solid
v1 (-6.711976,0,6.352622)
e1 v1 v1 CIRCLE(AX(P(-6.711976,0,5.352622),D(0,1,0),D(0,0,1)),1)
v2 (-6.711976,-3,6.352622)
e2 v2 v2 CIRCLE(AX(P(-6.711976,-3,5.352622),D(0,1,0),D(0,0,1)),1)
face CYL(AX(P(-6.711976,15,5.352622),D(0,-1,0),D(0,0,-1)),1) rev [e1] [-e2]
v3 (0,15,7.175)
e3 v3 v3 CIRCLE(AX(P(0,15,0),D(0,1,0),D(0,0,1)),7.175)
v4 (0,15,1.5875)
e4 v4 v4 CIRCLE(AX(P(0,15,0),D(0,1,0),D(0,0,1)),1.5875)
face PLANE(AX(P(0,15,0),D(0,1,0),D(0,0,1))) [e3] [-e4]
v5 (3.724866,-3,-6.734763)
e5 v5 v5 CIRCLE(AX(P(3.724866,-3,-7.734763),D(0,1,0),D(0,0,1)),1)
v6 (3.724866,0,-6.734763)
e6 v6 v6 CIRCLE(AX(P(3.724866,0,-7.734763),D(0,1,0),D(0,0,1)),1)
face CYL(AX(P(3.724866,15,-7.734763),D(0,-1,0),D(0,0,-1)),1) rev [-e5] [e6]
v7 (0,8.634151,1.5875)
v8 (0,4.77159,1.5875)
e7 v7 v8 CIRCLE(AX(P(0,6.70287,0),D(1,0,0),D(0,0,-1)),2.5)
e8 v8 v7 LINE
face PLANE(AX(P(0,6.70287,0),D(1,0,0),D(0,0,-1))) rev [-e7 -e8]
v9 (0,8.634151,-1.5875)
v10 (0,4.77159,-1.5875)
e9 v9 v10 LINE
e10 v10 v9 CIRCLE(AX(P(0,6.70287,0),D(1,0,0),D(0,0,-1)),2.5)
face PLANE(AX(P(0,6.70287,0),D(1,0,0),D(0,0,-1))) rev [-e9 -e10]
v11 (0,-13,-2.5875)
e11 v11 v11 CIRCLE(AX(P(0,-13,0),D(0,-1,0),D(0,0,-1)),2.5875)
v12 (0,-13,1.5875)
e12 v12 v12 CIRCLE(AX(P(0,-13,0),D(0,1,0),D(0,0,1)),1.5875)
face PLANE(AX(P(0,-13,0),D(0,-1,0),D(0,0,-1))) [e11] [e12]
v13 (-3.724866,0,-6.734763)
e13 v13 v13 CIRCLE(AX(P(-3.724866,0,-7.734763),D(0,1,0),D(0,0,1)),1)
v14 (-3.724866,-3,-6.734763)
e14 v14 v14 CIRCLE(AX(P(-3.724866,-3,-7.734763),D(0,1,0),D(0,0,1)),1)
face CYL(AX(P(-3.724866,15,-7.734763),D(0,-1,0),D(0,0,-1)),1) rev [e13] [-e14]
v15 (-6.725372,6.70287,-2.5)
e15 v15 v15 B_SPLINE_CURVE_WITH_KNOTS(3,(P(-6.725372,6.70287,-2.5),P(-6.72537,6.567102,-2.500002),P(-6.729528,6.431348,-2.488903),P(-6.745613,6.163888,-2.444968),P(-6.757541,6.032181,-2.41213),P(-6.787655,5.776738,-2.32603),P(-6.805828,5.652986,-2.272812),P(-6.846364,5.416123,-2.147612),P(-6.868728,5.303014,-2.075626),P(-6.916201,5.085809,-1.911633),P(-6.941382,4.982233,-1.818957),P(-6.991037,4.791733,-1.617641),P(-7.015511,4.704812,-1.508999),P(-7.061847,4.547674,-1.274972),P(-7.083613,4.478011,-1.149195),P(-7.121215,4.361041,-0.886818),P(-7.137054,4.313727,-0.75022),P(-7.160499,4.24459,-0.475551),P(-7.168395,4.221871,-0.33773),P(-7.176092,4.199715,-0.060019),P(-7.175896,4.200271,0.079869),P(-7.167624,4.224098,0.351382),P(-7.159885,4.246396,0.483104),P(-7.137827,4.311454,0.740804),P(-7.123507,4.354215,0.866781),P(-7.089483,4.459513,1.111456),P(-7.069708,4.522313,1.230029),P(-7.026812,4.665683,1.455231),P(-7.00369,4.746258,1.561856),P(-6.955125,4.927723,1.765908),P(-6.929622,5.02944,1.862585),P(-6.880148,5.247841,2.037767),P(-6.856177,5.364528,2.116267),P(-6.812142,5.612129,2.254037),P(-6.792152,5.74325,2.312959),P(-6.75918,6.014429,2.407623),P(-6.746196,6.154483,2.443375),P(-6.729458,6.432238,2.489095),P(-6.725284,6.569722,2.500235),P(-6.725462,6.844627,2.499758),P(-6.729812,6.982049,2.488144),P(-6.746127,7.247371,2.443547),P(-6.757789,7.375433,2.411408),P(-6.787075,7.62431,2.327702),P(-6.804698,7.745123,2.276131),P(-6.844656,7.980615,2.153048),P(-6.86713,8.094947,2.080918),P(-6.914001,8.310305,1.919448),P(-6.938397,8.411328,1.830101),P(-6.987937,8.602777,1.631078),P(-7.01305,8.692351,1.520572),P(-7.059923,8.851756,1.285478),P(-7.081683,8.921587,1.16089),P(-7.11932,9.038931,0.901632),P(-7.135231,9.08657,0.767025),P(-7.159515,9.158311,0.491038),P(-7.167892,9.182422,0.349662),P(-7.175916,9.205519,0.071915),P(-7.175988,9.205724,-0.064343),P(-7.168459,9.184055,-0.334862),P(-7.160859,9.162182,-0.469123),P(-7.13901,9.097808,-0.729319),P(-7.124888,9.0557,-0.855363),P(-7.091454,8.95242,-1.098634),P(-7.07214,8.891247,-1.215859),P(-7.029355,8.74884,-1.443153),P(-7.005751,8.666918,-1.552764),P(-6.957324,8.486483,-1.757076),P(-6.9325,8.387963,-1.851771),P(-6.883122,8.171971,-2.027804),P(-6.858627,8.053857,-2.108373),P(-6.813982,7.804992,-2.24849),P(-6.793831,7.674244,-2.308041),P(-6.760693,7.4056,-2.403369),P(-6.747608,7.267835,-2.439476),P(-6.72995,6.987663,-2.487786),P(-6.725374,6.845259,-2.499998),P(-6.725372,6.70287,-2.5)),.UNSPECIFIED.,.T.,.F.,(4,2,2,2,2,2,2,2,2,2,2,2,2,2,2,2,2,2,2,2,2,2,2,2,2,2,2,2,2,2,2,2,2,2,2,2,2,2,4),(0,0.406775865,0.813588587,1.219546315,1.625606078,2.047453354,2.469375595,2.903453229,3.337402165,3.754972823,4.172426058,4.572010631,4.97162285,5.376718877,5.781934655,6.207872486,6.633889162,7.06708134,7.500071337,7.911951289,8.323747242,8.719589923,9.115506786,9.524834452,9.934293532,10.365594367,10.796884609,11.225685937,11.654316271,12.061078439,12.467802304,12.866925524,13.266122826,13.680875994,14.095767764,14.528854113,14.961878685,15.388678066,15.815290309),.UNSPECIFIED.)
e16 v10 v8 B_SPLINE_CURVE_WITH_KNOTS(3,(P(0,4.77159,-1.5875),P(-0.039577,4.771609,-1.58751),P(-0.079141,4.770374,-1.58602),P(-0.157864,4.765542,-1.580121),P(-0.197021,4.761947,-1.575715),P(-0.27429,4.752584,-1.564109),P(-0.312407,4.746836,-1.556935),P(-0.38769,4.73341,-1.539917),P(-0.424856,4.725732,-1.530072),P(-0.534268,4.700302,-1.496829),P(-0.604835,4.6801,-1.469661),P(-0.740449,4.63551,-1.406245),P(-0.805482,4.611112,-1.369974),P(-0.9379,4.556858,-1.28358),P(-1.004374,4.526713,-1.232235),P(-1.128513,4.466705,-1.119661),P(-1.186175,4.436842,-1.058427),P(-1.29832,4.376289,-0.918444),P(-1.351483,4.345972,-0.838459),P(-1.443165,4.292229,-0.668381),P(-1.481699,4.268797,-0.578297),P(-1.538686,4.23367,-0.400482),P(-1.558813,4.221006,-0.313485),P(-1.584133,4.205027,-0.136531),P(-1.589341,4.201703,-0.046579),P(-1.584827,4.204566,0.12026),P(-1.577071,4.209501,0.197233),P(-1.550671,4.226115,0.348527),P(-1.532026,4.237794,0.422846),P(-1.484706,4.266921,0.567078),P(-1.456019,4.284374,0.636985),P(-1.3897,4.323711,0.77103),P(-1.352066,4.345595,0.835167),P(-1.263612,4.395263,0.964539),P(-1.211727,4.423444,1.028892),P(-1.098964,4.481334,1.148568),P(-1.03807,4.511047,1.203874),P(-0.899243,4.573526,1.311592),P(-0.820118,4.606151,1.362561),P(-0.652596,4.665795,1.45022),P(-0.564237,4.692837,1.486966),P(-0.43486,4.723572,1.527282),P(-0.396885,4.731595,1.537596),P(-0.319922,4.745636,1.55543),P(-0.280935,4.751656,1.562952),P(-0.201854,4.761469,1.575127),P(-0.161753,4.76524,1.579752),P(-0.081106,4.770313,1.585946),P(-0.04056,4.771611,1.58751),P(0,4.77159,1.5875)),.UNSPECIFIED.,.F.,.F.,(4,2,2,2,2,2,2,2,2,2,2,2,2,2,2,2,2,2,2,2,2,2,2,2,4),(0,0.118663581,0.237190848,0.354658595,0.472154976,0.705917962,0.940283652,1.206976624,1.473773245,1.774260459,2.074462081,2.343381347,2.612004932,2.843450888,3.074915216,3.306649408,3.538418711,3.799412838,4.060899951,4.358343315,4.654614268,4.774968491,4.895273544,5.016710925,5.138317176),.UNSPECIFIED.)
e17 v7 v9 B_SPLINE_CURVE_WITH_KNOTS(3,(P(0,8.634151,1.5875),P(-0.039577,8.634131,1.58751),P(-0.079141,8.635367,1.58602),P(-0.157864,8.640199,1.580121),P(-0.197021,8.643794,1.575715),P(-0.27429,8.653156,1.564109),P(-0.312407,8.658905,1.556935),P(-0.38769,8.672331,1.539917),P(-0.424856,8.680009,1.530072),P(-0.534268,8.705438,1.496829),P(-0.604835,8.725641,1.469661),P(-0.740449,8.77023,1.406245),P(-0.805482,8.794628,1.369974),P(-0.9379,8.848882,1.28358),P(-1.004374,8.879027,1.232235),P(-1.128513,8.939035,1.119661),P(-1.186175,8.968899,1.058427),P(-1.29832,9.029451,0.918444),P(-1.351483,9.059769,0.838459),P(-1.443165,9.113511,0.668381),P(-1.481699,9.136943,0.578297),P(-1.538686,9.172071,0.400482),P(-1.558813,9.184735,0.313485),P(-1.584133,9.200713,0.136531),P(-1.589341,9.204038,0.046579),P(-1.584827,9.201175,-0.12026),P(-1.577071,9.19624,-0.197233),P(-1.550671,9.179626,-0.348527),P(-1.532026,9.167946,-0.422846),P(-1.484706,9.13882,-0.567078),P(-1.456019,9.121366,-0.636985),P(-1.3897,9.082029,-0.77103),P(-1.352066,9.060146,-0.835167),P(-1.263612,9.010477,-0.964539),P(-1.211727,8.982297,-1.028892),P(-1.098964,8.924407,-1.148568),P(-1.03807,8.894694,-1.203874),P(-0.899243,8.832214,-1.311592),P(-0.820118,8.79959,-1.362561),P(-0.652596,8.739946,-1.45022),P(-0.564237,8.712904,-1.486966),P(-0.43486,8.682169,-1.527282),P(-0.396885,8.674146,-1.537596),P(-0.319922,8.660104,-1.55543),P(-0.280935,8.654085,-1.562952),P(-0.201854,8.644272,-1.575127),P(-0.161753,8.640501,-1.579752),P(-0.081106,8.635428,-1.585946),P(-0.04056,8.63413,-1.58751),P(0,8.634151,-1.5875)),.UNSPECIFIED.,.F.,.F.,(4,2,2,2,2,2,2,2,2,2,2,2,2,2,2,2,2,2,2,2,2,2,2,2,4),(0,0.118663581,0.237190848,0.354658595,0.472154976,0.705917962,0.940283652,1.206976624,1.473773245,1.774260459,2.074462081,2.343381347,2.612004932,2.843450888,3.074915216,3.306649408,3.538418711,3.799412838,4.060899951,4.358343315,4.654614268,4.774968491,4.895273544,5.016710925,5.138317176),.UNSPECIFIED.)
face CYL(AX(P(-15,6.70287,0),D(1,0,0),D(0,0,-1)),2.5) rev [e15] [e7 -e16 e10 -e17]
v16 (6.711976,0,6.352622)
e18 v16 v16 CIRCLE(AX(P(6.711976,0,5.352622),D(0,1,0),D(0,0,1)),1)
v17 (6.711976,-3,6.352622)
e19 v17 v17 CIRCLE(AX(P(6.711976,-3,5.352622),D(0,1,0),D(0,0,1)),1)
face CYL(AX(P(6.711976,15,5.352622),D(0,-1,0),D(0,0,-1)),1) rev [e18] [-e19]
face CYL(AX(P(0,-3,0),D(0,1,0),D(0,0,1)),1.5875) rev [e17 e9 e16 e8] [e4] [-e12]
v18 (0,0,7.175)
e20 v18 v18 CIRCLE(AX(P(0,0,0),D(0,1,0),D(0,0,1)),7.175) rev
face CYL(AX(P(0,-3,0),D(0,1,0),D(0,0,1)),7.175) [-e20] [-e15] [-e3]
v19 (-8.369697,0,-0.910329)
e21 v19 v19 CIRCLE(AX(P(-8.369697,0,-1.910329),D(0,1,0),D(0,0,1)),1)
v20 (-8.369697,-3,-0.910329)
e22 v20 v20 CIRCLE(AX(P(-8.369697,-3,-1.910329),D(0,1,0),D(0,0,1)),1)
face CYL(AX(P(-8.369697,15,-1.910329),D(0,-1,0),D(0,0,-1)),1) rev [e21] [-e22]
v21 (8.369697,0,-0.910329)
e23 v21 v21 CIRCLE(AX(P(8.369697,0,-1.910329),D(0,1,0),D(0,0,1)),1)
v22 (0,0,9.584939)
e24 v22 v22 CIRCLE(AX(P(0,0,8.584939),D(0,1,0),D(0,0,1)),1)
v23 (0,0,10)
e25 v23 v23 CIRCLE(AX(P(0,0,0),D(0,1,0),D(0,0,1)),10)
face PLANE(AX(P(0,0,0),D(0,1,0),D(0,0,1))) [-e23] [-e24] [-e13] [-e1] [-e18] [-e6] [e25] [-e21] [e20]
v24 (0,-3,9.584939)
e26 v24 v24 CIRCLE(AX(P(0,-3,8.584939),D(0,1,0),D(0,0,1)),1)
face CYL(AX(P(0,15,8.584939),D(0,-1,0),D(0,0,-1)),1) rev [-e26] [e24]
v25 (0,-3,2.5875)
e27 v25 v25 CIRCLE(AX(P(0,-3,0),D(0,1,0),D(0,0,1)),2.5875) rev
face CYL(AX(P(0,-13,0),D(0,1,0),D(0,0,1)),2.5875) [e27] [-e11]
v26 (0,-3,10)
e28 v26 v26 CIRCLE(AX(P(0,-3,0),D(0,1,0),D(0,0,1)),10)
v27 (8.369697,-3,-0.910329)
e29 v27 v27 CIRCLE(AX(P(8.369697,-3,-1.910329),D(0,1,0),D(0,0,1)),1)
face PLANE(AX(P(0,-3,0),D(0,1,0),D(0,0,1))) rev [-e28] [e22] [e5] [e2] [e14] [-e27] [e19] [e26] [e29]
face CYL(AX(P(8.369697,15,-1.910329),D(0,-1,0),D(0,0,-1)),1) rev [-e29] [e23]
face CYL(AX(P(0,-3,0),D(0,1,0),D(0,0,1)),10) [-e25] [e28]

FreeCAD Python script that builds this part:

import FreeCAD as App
import Part
import Sketcher
from FreeCAD import Vector

doc = App.newDocument("Part")
body = doc.addObject("PartDesign::Body", "Body")

# Sketch on XZ plane
sketch1 = body.newObject("Sketcher::SketchObject", "Sketch")
sketch1.AttachmentSupport = (doc.getObject("XZ_Plane"), [""])
sketch1.MapMode = "FlatFace"
sketch1.addGeometry([
    Part.Circle(Vector(0, 0, 0), Vector(0, 0, 1), 7.2),
    Part.Circle(Vector(0, 0, 0), Vector(0, 0, 1), 1.6),
], False)
sketch1.addConstraint([
    Sketcher.Constraint("Coincident", 0, 3, -1, 1),
    Sketcher.Constraint("Coincident", 1, 3, -1, 1),
    Sketcher.Constraint("Diameter", 0, 14.35),
    Sketcher.Constraint("Diameter", 1, 3.175),
])
pad1 = body.newObject("PartDesign::Pad", "Pad")
pad1.Profile = sketch1
pad1.Type = "TwoLengths"
pad1.Length = 15
pad1.Length2 = 3
pad1.Reversed = True

# Sketch on YZ plane
sketch2 = body.newObject("Sketcher::SketchObject", "Sketch001")
sketch2.AttachmentSupport = (doc.getObject("YZ_Plane"), [""])
sketch2.MapMode = "FlatFace"
sketch2.addGeometry(Part.Circle(Vector(6.7, 0, 0), Vector(0, 0, 1), 2.5), False)
sketch2.addConstraint([
    Sketcher.Constraint("PointOnObject", 0, 3, -1),
    Sketcher.Constraint("Diameter", 0, 5.0),
    Sketcher.Constraint("DistanceX", -1, 1, 0, 3, 6.70287),
])
pocket1 = body.newObject("PartDesign::Pocket", "Pocket")
pocket1.Profile = sketch2
pocket1.Length = 15
body2 = doc.addObject("PartDesign::Body", "Body001")

# Sketch on XZ plane
sketch3 = body2.newObject("Sketcher::SketchObject", "Sketch002")
sketch3.AttachmentSupport = (doc.getObject("XZ_Plane001"), [""])
sketch3.MapMode = "FlatFace"
sketch3.addGeometry([
    Part.Circle(Vector(0, 0, 0), Vector(0, 0, 1), 10),
    Part.Circle(Vector(0, 0, 0), Vector(0, 0, 1), 7),
], False)
sketch3.addConstraint([
    Sketcher.Constraint("Coincident", 0, 3, -1, 1),
    Sketcher.Constraint("Coincident", 1, 3, -1, 1),
    Sketcher.Constraint("Diameter", 0, 20.0),
    Sketcher.Constraint("Diameter", 1, 14.35),
])
pad2 = body2.newObject("PartDesign::Pad", "Pad001")
pad2.Profile = sketch3
pad2.Length = 3

# Sketch on XZ plane
sketch4 = body2.newObject("Sketcher::SketchObject", "Sketch003")
sketch4.AttachmentSupport = (doc.getObject("XZ_Plane001"), [""])
sketch4.MapMode = "FlatFace"
sketch4.AttachmentOffset = App.Placement(Vector(0, 0, 3), App.Rotation())
sketch4.addGeometry([
    Part.Circle(Vector(0, 8.6, 0), Vector(0, 0, 1), 1),  # 0
    Part.Circle(Vector(6.7, 5.4, 0), Vector(0, 0, 1), 1),  # 1
    Part.Circle(Vector(8.4, -1.9, 0), Vector(0, 0, 1), 1),  # 2
    Part.Circle(Vector(3.7, -7.7, 0), Vector(0, 0, 1), 1),  # 3
    Part.Circle(Vector(-3.7, -7.7, 0), Vector(0, 0, 1), 1),  # 4
    Part.Circle(Vector(-8.4, -1.9, 0), Vector(0, 0, 1), 1),  # 5
    Part.Circle(Vector(-6.7, 5.4, 0), Vector(0, 0, 1), 1),  # 6
], False)
sketch4.addConstraint([
    Sketcher.Constraint("Equal", 0, 1),
    Sketcher.Constraint("Equal", 1, 2),
    Sketcher.Constraint("Equal", 2, 3),
    Sketcher.Constraint("Equal", 3, 4),
    Sketcher.Constraint("Equal", 4, 5),
    Sketcher.Constraint("Equal", 5, 6),
    Sketcher.Constraint("Symmetric", 3, 3, 4, 3, -2),
    Sketcher.Constraint("Symmetric", 2, 3, 5, 3, -2),
    Sketcher.Constraint("Symmetric", 1, 3, 6, 3, -2),
    Sketcher.Constraint("PointOnObject", 0, 3, -2),
    Sketcher.Constraint("Diameter", 0, 2.0),
    Sketcher.Constraint("DistanceY", -1, 1, 0, 3, 8.584939),
    Sketcher.Constraint("DistanceY", 2, 3, -1, 1, 1.910329),
    Sketcher.Constraint("DistanceX", 1, 3, 2, 3, 1.657721),
    Sketcher.Constraint("DistanceY", 2, 3, 1, 3, 7.262951),
    Sketcher.Constraint("DistanceX", 3, 3, 2, 3, 4.644831),
    Sketcher.Constraint("DistanceX", 4, 3, 3, 3, 7.449731),
    Sketcher.Constraint("DistanceY", 3, 3, -1, 1, 7.734763),
])
pocket2 = body2.newObject("PartDesign::Pocket", "Pocket001")
pocket2.Profile = sketch4
pocket2.Type = "ThroughAll"
pocket2.Midplane = True
doc.recompute()

boolean = body.newObject("PartDesign::Boolean", "Boolean")
boolean.Type = "Fuse"
boolean.addObjects([body2])

# Sketch on XZ plane
sketch5 = body.newObject("Sketcher::SketchObject", "Sketch004")
sketch5.AttachmentSupport = (doc.getObject("XZ_Plane"), [""])
sketch5.MapMode = "FlatFace"
sketch5.AttachmentOffset = App.Placement(Vector(0, 0, 3), App.Rotation())
sketch5.addGeometry(Part.Circle(Vector(0, 0, 0), Vector(0, 0, 1), 2.6), False)
sketch5.addConstraint([
    Sketcher.Constraint("Coincident", 0, 3, -1, 1),
    Sketcher.Constraint("Diameter", 0, 5.175),
])
pad3 = body.newObject("PartDesign::Pad", "Pad002")
pad3.Profile = sketch5
pad3.Length = 10

# Sketch on XZ plane
sketch6 = body.newObject("Sketcher::SketchObject", "Sketch005")
sketch6.AttachmentSupport = (doc.getObject("XZ_Plane"), [""])
sketch6.MapMode = "FlatFace"
sketch6.addGeometry(Part.Circle(Vector(0, 0, 0), Vector(0, 0, 1), 1.6), False)
sketch6.addConstraint([
    Sketcher.Constraint("Coincident", 0, 3, -1, 1),
    Sketcher.Constraint("Diameter", 0, 3.175),
])
pocket3 = body.newObject("PartDesign::Pocket", "Pocket002")
pocket3.Profile = sketch6
pocket3.Type = "ThroughAll"
pocket3.Midplane = True

doc.recompute()
